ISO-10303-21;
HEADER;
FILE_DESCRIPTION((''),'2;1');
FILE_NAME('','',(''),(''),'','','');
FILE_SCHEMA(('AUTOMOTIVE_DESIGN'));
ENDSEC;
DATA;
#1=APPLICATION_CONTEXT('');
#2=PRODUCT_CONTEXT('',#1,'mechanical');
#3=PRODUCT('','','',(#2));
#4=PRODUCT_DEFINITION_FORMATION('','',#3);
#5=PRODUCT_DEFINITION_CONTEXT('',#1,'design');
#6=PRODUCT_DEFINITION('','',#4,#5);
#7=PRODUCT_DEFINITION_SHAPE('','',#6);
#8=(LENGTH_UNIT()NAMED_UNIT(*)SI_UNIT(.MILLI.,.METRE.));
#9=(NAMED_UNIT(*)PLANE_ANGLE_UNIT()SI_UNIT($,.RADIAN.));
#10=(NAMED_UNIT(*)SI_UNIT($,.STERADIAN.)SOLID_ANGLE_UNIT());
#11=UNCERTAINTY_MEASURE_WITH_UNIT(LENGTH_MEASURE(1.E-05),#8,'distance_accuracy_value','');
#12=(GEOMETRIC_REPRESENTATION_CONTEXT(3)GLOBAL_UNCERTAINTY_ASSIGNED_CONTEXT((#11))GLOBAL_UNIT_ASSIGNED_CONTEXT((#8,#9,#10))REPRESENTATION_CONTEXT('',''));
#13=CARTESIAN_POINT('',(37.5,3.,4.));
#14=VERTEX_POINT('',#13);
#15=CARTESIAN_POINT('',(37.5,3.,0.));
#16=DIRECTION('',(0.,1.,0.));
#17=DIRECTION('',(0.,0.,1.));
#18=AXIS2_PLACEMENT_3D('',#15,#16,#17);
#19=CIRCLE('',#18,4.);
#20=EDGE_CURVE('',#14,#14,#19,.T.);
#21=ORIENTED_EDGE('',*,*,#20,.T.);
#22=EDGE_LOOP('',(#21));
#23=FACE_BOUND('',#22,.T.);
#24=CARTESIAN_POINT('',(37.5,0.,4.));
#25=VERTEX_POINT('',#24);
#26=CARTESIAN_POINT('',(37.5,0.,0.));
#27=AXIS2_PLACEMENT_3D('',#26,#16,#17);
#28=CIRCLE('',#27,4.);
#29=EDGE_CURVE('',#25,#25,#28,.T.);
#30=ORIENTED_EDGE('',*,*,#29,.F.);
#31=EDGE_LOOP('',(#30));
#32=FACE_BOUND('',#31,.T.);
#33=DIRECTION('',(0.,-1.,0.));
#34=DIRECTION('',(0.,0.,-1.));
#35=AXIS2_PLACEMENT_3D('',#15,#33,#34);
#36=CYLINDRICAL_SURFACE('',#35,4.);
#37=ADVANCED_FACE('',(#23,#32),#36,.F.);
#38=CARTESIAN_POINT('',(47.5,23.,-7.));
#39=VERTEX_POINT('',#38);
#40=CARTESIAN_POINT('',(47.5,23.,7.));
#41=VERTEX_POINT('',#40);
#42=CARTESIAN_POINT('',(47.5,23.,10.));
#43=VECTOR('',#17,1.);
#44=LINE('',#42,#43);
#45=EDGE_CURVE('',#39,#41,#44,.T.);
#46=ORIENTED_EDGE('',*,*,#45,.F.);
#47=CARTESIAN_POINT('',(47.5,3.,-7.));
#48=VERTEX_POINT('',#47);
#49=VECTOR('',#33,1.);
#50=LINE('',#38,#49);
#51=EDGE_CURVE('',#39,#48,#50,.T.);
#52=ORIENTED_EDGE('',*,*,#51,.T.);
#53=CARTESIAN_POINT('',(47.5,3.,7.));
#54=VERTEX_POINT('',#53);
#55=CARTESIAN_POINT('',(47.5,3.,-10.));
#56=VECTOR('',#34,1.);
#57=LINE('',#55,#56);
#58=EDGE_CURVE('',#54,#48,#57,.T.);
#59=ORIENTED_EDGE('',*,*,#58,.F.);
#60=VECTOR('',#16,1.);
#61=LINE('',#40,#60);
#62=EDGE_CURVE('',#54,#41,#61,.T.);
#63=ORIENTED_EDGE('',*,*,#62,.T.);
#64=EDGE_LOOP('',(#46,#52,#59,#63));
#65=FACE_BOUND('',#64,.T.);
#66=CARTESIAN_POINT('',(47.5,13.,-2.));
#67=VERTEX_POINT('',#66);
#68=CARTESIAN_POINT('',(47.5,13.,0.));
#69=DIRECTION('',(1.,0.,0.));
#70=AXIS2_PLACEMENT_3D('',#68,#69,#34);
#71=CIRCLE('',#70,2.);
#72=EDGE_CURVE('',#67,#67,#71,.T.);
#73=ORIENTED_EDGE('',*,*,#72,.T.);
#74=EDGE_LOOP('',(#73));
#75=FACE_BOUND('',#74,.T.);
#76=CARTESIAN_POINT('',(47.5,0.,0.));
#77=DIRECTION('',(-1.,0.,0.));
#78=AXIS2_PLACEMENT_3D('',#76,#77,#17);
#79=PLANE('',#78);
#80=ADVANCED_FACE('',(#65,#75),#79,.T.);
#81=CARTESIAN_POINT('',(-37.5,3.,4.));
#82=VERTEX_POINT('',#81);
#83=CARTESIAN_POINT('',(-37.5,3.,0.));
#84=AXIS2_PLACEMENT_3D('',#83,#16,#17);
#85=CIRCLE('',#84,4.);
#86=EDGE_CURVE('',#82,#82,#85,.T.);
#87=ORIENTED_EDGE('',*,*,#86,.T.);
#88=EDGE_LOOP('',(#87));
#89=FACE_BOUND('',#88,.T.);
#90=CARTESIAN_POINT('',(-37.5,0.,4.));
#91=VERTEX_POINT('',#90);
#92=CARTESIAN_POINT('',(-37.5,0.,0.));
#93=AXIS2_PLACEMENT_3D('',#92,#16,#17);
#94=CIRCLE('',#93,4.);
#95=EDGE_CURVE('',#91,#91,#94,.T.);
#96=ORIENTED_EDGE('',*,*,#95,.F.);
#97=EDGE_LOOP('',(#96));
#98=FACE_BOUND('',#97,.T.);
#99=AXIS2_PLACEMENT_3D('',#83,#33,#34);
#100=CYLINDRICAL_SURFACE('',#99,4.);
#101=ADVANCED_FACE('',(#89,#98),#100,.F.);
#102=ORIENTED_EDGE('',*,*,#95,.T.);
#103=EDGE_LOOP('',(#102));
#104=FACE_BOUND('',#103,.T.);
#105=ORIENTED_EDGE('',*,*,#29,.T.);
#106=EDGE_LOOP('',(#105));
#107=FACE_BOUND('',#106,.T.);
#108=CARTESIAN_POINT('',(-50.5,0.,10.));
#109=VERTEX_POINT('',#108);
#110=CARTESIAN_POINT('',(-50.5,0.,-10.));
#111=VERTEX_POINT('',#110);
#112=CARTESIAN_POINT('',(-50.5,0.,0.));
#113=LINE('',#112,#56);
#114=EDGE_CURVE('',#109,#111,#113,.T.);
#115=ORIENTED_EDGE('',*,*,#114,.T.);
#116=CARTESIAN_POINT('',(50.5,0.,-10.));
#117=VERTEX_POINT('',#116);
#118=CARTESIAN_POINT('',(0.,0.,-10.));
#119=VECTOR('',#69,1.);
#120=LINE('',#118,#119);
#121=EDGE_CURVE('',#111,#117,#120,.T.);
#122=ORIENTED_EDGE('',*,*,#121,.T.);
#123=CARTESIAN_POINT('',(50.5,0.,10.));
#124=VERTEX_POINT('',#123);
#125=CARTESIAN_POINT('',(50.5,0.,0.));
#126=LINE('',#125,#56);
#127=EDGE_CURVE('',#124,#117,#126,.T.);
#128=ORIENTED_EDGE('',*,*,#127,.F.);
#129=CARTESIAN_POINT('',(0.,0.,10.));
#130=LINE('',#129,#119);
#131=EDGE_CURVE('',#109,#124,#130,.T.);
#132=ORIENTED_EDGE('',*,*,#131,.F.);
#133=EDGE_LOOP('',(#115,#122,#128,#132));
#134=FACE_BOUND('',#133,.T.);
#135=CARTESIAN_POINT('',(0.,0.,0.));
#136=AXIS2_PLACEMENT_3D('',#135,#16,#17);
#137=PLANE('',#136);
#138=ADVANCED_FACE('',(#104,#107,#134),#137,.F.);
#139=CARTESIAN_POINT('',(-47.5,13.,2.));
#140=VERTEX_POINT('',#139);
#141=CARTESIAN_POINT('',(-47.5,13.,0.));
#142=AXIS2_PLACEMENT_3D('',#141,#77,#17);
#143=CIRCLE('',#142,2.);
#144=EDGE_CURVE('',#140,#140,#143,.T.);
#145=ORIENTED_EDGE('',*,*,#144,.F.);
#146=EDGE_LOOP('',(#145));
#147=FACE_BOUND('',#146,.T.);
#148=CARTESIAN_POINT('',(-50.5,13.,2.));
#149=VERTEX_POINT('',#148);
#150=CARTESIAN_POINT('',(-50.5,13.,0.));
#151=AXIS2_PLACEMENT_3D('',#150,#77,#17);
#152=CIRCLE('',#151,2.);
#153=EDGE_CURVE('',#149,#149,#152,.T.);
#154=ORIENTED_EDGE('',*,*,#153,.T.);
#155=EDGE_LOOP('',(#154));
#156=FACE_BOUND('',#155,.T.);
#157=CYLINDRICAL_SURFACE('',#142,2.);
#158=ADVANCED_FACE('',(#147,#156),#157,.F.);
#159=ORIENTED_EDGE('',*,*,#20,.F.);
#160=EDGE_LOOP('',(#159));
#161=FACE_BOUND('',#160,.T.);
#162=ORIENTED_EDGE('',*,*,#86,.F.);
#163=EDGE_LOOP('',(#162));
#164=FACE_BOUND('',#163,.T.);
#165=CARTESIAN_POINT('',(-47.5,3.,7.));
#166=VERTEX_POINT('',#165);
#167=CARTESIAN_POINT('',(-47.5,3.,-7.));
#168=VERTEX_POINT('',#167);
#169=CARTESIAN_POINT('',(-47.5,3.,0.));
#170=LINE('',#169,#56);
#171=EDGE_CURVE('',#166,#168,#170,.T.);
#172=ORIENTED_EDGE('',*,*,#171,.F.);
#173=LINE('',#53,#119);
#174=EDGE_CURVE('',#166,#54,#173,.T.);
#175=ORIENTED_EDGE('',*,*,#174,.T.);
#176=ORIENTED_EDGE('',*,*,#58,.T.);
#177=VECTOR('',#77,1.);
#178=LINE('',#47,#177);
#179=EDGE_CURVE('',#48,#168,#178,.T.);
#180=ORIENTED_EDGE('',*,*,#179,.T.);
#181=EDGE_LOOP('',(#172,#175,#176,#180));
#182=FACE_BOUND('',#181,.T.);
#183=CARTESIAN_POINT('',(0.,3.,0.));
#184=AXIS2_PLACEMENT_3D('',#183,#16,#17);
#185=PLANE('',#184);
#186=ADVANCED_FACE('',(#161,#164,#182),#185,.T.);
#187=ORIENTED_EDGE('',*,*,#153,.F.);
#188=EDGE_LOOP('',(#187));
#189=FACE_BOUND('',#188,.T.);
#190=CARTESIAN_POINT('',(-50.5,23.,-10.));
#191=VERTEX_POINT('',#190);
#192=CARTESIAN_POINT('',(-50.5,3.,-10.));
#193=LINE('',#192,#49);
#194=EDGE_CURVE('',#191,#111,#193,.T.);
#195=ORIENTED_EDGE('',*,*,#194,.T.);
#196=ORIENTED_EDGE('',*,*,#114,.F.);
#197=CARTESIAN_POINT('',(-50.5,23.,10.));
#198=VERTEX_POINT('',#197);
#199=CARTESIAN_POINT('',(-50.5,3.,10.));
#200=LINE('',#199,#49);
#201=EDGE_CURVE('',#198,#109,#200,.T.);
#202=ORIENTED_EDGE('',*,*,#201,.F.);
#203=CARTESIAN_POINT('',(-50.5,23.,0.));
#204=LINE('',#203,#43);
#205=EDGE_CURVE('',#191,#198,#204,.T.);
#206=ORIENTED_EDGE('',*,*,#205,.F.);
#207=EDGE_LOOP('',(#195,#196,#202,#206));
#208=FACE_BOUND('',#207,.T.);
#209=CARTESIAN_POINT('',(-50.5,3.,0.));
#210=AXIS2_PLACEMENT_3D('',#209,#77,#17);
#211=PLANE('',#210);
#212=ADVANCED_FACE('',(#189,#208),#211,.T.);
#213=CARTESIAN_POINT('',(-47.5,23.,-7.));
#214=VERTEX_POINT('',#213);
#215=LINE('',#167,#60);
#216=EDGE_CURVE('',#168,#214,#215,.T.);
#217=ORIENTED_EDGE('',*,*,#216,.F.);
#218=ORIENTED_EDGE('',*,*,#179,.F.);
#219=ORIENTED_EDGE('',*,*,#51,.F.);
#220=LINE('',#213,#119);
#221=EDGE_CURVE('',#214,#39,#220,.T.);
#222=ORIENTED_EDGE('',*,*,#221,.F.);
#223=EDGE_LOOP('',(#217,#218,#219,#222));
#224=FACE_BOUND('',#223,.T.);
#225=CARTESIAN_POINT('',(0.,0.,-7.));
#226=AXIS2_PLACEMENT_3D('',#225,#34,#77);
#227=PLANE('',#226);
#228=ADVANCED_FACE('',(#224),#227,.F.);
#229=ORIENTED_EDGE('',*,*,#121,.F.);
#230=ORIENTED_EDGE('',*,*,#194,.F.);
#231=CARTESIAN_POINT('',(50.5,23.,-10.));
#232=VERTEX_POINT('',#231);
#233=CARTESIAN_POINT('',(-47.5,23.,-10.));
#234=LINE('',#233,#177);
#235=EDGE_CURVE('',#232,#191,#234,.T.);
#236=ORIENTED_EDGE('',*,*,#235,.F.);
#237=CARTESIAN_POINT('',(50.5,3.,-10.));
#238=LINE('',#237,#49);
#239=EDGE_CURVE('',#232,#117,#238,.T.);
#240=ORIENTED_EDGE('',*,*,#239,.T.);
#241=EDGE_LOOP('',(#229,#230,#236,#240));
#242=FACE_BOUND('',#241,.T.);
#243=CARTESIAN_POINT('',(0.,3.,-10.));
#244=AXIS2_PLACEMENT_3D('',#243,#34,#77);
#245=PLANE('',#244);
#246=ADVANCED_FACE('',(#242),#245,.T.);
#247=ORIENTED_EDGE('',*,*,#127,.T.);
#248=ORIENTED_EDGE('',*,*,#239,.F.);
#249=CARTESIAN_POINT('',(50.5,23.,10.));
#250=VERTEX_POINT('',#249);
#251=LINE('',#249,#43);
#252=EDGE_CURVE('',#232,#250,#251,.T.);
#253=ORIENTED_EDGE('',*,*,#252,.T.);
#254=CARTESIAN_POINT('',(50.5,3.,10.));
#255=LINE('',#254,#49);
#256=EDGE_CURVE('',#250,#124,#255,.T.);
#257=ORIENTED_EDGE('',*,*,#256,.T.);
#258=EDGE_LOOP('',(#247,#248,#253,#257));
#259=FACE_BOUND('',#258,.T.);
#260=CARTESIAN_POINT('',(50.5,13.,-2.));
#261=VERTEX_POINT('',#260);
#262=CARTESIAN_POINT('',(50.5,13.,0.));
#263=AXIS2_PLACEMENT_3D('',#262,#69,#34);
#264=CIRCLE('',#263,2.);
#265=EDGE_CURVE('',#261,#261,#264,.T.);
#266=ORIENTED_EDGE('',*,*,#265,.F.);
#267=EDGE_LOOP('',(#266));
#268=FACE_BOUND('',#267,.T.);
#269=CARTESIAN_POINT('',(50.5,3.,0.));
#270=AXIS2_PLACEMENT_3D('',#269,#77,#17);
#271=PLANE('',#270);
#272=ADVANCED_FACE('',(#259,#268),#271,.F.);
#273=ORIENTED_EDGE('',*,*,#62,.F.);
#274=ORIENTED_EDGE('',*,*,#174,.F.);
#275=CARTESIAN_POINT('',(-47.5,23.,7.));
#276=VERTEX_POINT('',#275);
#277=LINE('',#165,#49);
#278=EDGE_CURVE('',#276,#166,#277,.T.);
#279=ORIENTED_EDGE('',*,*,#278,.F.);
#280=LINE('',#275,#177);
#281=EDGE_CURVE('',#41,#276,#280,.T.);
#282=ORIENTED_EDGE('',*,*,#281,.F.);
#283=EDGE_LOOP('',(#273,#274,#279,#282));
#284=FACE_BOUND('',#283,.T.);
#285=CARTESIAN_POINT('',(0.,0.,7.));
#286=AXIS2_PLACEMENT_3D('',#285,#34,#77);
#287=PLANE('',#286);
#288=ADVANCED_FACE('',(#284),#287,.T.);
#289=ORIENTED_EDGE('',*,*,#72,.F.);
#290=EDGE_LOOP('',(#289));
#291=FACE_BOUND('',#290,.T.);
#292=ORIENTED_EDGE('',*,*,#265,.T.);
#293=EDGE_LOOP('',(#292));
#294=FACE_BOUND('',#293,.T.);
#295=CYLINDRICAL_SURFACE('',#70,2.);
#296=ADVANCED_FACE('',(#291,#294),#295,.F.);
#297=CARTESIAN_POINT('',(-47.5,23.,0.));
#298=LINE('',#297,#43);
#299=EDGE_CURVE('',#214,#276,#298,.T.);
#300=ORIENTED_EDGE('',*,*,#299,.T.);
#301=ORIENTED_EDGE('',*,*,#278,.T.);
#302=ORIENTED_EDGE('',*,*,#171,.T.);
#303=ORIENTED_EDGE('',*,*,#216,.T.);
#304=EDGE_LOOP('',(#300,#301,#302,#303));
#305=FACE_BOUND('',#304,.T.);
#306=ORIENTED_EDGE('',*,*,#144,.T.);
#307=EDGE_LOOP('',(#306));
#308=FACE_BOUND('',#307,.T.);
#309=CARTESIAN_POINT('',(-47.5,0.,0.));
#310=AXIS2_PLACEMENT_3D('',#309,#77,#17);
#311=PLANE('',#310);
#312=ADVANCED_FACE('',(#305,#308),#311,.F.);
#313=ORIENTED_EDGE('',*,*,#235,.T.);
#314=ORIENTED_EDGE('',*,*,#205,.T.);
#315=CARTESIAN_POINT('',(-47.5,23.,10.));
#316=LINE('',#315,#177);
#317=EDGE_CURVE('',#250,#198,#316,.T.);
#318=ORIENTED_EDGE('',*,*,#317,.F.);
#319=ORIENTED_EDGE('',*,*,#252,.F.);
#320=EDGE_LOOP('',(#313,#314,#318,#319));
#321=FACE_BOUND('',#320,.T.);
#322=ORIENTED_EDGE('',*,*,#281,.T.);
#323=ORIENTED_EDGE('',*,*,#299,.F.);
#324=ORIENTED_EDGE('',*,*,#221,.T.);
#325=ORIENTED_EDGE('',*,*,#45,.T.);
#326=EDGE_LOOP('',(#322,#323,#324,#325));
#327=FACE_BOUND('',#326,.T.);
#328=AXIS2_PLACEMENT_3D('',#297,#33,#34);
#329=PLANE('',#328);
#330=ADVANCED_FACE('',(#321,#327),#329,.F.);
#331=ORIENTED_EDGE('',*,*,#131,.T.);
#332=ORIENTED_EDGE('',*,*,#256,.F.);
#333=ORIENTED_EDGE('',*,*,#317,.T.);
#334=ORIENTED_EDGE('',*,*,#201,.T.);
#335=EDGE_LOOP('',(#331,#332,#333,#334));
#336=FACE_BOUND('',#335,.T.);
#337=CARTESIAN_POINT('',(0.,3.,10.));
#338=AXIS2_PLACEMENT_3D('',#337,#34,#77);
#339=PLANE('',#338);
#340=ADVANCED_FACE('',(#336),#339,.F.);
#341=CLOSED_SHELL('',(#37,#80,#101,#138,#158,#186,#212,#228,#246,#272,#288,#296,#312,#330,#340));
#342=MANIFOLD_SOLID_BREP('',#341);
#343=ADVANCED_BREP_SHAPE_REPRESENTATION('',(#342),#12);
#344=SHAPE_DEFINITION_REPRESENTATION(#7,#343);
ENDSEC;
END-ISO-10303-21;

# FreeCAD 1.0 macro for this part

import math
import FreeCAD as App
import Part
import Sketcher
from FreeCAD import Vector

doc = App.newDocument("Part")
params = doc.addObject("Spreadsheet::Sheet", "Params")
for row, (alias, value) in enumerate([
    ("sketch1_diameter", "8 mm"),
    ("sketch1_width", "101 mm"),
    ("sketch1_height", "20 mm"),
    ("pad1_length", "3 mm"),
    ("sketch2_radius", "2 mm"),
    ("sketch2_width", "20 mm"),
    ("pad2_length", "3 mm"),
    ("sketch3_diameter", "4 mm"),
    ("sketch3_width", "20 mm"),
    ("pad3_length", "3 mm"),
    ("sketch4_width", "95 mm"),
    ("sketch4_height", "20 mm"),
    ("pad4_length", "3 mm"),
    ("sketch5_width", "95 mm"),
    ("sketch5_height", "20 mm"),
    ("pad5_length", "3 mm"),
], start=1):
    params.set(f"A{row}", alias)
    params.set(f"B{row}", "=" + value)
    params.setAlias(f"B{row}", alias)

body = doc.addObject("PartDesign::Body", "Body")

# Sketch on XZ plane
sketch1 = body.newObject("Sketcher::SketchObject", "Sketch")
sketch1.AttachmentSupport = (doc.getObject("XZ_Plane"), [""])
sketch1.MapMode = "FlatFace"
sketch1.addGeometry([
    Part.LineSegment(Vector(-50.5, -10, 0), Vector(-50.5, 10, 0)),  # 0
    Part.LineSegment(Vector(-50.5, 10, 0), Vector(50.5, 10, 0)),  # 1
    Part.LineSegment(Vector(50.5, 10, 0), Vector(50.5, -10, 0)),  # 2
    Part.LineSegment(Vector(50.5, -10, 0), Vector(-50.5, -10, 0)),  # 3
    Part.Circle(Vector(-37.5, 0, 0), Vector(0, 0, 1), 4),  # 4
    Part.Circle(Vector(37.5, 0, 0), Vector(0, 0, 1), 4),  # 5
], False)
sketch1.addConstraint([
    Sketcher.Constraint("Coincident", 0, 2, 1, 1),
    Sketcher.Constraint("Coincident", 1, 2, 2, 1),
    Sketcher.Constraint("Coincident", 2, 2, 3, 1),
    Sketcher.Constraint("Coincident", 3, 2, 0, 1),
    Sketcher.Constraint("Vertical", 0),
    Sketcher.Constraint("Horizontal", 1),
    Sketcher.Constraint("Vertical", 2),
    Sketcher.Constraint("Horizontal", 3),
    Sketcher.Constraint("Equal", 4, 5),
    Sketcher.Constraint("Symmetric", 4, 3, 5, 3, -1, 1),
    Sketcher.Constraint("Symmetric", 0, 2, 2, 2, -1, 1),
    Sketcher.Constraint("PointOnObject", 4, 3, -1),
    Sketcher.Constraint("Diameter", 4, 8.0),
    Sketcher.Constraint("DistanceX", 1, 1, 1, 2, 101.0),
    Sketcher.Constraint("DistanceY", 0, 1, 0, 2, 20.0),
    Sketcher.Constraint("DistanceX", 4, 3, 5, 3, 75.0),
])
sketch1.setExpression("Constraints[12]", "Params.sketch1_diameter")
sketch1.setExpression("Constraints[13]", "Params.sketch1_width")
sketch1.setExpression("Constraints[14]", "Params.sketch1_height")
pad1 = body.newObject("PartDesign::Pad", "Pad")
pad1.Profile = sketch1
pad1.setExpression("Length", "Params.pad1_length")
pad1.Reversed = True

# Sketch on YZ plane
sketch2 = body.newObject("Sketcher::SketchObject", "Sketch001")
sketch2.AttachmentSupport = (doc.getObject("YZ_Plane"), [""])
sketch2.MapMode = "FlatFace"
sketch2.AttachmentOffset = App.Placement(Vector(0, 0, -50.5), App.Rotation())
sketch2.addGeometry([
    Part.LineSegment(Vector(23, -10, 0), Vector(3, -10, 0)),  # 0
    Part.LineSegment(Vector(3, -10, 0), Vector(3, 10, 0)),  # 1
    Part.LineSegment(Vector(3, 10, 0), Vector(23, 10, 0)),  # 2
    Part.LineSegment(Vector(23, 10, 0), Vector(23, -10, 0)),  # 3
    Part.ArcOfCircle(Part.Circle(Vector(13, 0, 0), Vector(0, 0, 1), 2), math.radians(0), math.radians(90)),  # 4
    Part.ArcOfCircle(Part.Circle(Vector(13, 0, 0), Vector(0, 0, 1), 2), math.radians(90), math.radians(360)),  # 5
], False)
sketch2.addConstraint([
    Sketcher.Constraint("Coincident", 0, 2, 1, 1),
    Sketcher.Constraint("Coincident", 1, 2, 2, 1),
    Sketcher.Constraint("Coincident", 2, 2, 3, 1),
    Sketcher.Constraint("Coincident", 3, 2, 0, 1),
    Sketcher.Constraint("Tangent", 4, 1, 5, 2),
    Sketcher.Constraint("Coincident", 5, 1, 4, 2),
    Sketcher.Constraint("Horizontal", 0),
    Sketcher.Constraint("Vertical", 1),
    Sketcher.Constraint("Horizontal", 2),
    Sketcher.Constraint("Vertical", 3),
    Sketcher.Constraint("PointOnObject", 4, 3, -1),
    Sketcher.Constraint("PointOnObject", 4, 1, -1),
    Sketcher.Constraint("Vertical", 4, 3, 5, 1),
    Sketcher.Constraint("Equal", 2, 1),
    Sketcher.Constraint("Radius", 4, 2.0),
    Sketcher.Constraint("DistanceX", 0, 2, 0, 1, 20.0),
    Sketcher.Constraint("DistanceX", -1, 1, 4, 3, 13.0),
    Sketcher.Constraint("DistanceX", -1, 1, 0, 2, 3.0),
    Sketcher.Constraint("DistanceY", 0, 2, -1, 1, 10.0),
])
sketch2.setExpression("Constraints[14]", "Params.sketch2_radius")
sketch2.setExpression("Constraints[15]", "Params.sketch2_width")
pad2 = body.newObject("PartDesign::Pad", "Pad001")
pad2.Profile = sketch2
pad2.setExpression("Length", "Params.pad2_length")

# Sketch on YZ plane
sketch3 = body.newObject("Sketcher::SketchObject", "Sketch002")
sketch3.AttachmentSupport = (doc.getObject("YZ_Plane"), [""])
sketch3.MapMode = "FlatFace"
sketch3.AttachmentOffset = App.Placement(Vector(0, 0, 50.5), App.Rotation())
sketch3.addGeometry([
    Part.LineSegment(Vector(23, 10, 0), Vector(3, 10, 0)),  # 0
    Part.LineSegment(Vector(3, 10, 0), Vector(3, -10, 0)),  # 1
    Part.LineSegment(Vector(3, -10, 0), Vector(23, -10, 0)),  # 2
    Part.LineSegment(Vector(23, -10, 0), Vector(23, 10, 0)),  # 3
    Part.Circle(Vector(13, 0, 0), Vector(0, 0, 1), 2),  # 4
], False)
sketch3.addConstraint([
    Sketcher.Constraint("Coincident", 0, 2, 1, 1),
    Sketcher.Constraint("Coincident", 1, 2, 2, 1),
    Sketcher.Constraint("Coincident", 2, 2, 3, 1),
    Sketcher.Constraint("Coincident", 3, 2, 0, 1),
    Sketcher.Constraint("Horizontal", 0),
    Sketcher.Constraint("Vertical", 1),
    Sketcher.Constraint("Horizontal", 2),
    Sketcher.Constraint("Vertical", 3),
    Sketcher.Constraint("PointOnObject", 4, 3, -1),
    Sketcher.Constraint("Equal", 2, 1),
    Sketcher.Constraint("Diameter", 4, 4.0),
    Sketcher.Constraint("DistanceX", 0, 2, 0, 1, 20.0),
    Sketcher.Constraint("DistanceX", -1, 1, 4, 3, 13.0),
    Sketcher.Constraint("DistanceX", -1, 1, 0, 2, 3.0),
    Sketcher.Constraint("DistanceY", -1, 1, 0, 2, 10.0),
])
sketch3.setExpression("Constraints[10]", "Params.sketch3_diameter")
sketch3.setExpression("Constraints[11]", "Params.sketch3_width")
pad3 = body.newObject("PartDesign::Pad", "Pad002")
pad3.Profile = sketch3
pad3.setExpression("Length", "Params.pad3_length")
pad3.Reversed = True

# Sketch on XY plane
sketch4 = body.newObject("Sketcher::SketchObject", "Sketch003")
sketch4.AttachmentSupport = (doc.getObject("XY_Plane"), [""])
sketch4.MapMode = "FlatFace"
sketch4.AttachmentOffset = App.Placement(Vector(0, 0, 10), App.Rotation())
sketch4.addGeometry([
    Part.LineSegment(Vector(-48, 23, 0), Vector(-48, 3, 0)),
    Part.LineSegment(Vector(-48, 3, 0), Vector(48, 3, 0)),
    Part.LineSegment(Vector(48, 3, 0), Vector(48, 23, 0)),
    Part.LineSegment(Vector(48, 23, 0), Vector(-48, 23, 0)),
], False)
sketch4.addConstraint([
    Sketcher.Constraint("Coincident", 0, 2, 1, 1),
    Sketcher.Constraint("Coincident", 1, 2, 2, 1),
    Sketcher.Constraint("Coincident", 2, 2, 3, 1),
    Sketcher.Constraint("Coincident", 3, 2, 0, 1),
    Sketcher.Constraint("Vertical", 0),
    Sketcher.Constraint("Horizontal", 1),
    Sketcher.Constraint("Vertical", 2),
    Sketcher.Constraint("Horizontal", 3),
    Sketcher.Constraint("DistanceX", 1, 1, 1, 2, 95.0),
    Sketcher.Constraint("DistanceY", 0, 2, 0, 1, 20.0),
    Sketcher.Constraint("DistanceY", -1, 1, 0, 2, 3.0),
    Sketcher.Constraint("DistanceX", 0, 2, -1, 1, 47.5),
])
sketch4.setExpression("Constraints[8]", "Params.sketch4_width")
sketch4.setExpression("Constraints[9]", "Params.sketch4_height")
pad4 = body.newObject("PartDesign::Pad", "Pad003")
pad4.Profile = sketch4
pad4.setExpression("Length", "Params.pad4_length")
pad4.Reversed = True

# Sketch on XY plane
sketch5 = body.newObject("Sketcher::SketchObject", "Sketch004")
sketch5.AttachmentSupport = (doc.getObject("XY_Plane"), [""])
sketch5.MapMode = "FlatFace"
sketch5.AttachmentOffset = App.Placement(Vector(0, 0, -10), App.Rotation())
sketch5.addGeometry([
    Part.LineSegment(Vector(48, 23, 0), Vector(48, 3, 0)),
    Part.LineSegment(Vector(48, 3, 0), Vector(-48, 3, 0)),
    Part.LineSegment(Vector(-48, 3, 0), Vector(-48, 23, 0)),
    Part.LineSegment(Vector(-48, 23, 0), Vector(48, 23, 0)),
], False)
sketch5.addConstraint([
    Sketcher.Constraint("Coincident", 0, 2, 1, 1),
    Sketcher.Constraint("Coincident", 1, 2, 2, 1),
    Sketcher.Constraint("Coincident", 2, 2, 3, 1),
    Sketcher.Constraint("Coincident", 3, 2, 0, 1),
    Sketcher.Constraint("Vertical", 0),
    Sketcher.Constraint("Horizontal", 1),
    Sketcher.Constraint("Vertical", 2),
    Sketcher.Constraint("Horizontal", 3),
    Sketcher.Constraint("DistanceX", 1, 2, 1, 1, 95.0),
    Sketcher.Constraint("DistanceY", 0, 2, 0, 1, 20.0),
    Sketcher.Constraint("DistanceY", -1, 1, 0, 2, 3.0),
    Sketcher.Constraint("DistanceX", -1, 1, 0, 2, 47.5),
])
sketch5.setExpression("Constraints[8]", "Params.sketch5_width")
sketch5.setExpression("Constraints[9]", "Params.sketch5_height")
pad5 = body.newObject("PartDesign::Pad", "Pad004")
pad5.Profile = sketch5
pad5.setExpression("Length", "Params.pad5_length")

doc.recompute()
